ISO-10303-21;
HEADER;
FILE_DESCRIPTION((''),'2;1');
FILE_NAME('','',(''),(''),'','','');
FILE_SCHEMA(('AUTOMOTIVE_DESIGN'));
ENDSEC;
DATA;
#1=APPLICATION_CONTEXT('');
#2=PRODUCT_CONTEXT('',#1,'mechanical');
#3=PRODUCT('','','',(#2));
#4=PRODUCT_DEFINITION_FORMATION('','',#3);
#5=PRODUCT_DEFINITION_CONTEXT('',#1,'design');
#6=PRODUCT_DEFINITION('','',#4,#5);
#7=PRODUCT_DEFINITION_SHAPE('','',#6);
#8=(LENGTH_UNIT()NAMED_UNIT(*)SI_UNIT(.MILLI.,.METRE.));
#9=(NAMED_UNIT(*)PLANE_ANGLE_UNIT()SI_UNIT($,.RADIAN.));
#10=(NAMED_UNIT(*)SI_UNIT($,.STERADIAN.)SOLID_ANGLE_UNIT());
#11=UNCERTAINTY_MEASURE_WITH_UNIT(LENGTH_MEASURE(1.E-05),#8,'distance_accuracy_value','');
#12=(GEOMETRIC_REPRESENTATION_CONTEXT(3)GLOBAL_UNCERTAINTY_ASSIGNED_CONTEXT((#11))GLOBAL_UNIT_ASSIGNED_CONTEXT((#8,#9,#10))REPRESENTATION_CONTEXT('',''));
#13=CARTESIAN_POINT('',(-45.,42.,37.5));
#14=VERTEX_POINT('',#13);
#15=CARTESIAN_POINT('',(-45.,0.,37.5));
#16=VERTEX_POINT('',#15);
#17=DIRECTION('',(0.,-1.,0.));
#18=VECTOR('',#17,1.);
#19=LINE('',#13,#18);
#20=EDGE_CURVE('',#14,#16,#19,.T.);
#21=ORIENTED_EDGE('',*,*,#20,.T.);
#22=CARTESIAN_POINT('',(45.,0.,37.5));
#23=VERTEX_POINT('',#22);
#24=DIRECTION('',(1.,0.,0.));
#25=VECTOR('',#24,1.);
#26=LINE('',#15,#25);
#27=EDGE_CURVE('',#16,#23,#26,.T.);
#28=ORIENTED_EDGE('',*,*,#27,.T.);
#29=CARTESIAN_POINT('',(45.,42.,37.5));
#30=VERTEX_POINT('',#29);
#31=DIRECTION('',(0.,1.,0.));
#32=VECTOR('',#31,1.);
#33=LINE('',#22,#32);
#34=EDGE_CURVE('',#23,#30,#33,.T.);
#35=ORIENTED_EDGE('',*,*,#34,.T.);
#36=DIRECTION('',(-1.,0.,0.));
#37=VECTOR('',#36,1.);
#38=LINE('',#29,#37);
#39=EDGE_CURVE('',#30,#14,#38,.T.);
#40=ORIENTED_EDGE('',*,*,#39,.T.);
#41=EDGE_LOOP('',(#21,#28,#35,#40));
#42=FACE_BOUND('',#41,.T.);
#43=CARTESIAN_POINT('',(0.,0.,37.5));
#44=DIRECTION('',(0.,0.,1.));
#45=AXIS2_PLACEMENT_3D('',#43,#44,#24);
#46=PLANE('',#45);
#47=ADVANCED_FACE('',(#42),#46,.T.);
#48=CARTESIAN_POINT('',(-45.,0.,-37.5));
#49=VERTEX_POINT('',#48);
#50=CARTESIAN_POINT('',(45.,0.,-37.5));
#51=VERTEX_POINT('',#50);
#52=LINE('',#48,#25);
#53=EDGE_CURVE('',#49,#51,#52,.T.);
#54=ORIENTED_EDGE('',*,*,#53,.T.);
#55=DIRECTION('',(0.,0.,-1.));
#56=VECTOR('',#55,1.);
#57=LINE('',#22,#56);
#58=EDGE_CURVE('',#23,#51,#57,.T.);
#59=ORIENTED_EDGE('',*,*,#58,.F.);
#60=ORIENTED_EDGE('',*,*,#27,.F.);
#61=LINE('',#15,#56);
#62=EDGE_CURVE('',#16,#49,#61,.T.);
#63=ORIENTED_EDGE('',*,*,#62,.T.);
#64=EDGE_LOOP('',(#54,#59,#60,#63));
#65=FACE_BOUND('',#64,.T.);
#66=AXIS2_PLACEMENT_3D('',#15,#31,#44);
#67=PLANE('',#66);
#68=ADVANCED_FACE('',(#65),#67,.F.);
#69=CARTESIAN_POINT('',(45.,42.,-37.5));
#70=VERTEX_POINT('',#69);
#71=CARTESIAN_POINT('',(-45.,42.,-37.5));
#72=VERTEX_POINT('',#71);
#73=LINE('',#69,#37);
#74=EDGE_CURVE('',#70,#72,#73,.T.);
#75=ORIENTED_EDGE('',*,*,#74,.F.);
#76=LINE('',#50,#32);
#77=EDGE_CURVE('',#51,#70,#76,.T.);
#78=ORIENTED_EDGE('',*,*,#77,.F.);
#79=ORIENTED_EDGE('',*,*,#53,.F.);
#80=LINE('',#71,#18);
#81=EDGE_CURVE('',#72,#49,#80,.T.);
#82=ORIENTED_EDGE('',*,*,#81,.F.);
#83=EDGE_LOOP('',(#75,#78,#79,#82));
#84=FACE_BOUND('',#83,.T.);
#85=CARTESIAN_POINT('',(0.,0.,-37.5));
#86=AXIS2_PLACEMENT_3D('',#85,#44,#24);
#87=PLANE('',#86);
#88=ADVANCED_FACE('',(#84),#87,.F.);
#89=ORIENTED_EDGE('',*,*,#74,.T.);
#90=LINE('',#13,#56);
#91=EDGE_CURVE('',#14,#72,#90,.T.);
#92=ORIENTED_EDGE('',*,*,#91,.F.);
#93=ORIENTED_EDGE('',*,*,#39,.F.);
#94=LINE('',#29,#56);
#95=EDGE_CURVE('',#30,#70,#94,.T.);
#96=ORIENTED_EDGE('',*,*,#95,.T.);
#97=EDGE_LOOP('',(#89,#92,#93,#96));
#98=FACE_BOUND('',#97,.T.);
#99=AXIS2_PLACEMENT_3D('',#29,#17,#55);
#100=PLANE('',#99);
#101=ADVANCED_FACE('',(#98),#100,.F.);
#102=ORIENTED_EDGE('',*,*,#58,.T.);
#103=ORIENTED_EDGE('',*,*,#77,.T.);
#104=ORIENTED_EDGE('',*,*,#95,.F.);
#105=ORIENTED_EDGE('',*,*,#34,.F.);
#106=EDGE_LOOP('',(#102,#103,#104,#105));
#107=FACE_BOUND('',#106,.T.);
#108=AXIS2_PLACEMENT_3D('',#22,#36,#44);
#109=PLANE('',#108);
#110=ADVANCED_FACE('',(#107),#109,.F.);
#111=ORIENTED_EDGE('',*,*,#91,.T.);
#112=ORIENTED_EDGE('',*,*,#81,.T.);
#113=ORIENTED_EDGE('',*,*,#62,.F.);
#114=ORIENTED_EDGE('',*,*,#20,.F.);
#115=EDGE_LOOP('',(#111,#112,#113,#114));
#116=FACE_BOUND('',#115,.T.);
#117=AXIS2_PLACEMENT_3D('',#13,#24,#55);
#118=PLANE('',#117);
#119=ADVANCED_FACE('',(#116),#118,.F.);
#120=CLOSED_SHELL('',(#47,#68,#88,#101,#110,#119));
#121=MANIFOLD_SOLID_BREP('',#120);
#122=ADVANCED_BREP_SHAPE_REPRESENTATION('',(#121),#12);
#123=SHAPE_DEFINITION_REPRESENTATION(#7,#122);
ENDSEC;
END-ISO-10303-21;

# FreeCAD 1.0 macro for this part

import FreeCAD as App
import Part
import Sketcher
from FreeCAD import Vector

doc = App.newDocument("Part")
params = doc.addObject("Spreadsheet::Sheet", "Params")
for row, (alias, value) in enumerate([
    ("sketch1_width", "90 mm"),
    ("sketch1_height", "42 mm"),
    ("pad1_length", "75 mm"),
], start=1):
    params.set(f"A{row}", alias)
    params.set(f"B{row}", "=" + value)
    params.setAlias(f"B{row}", alias)

body = doc.addObject("PartDesign::Body", "Body")

sketch1 = doc.addObject("Sketcher::SketchObject", "Sketch")
body.addObject(sketch1)
sketch1.AttachmentSupport = (doc.XY_Plane, [""])
sketch1.MapMode = "FlatFace"
sketch1.addGeometry(Part.LineSegment(Vector(-45, 42, 0), Vector(-45, 0, 0)), False)
sketch1.addGeometry(Part.LineSegment(Vector(-45, 0, 0), Vector(45, 0, 0)), False)
sketch1.addGeometry(Part.LineSegment(Vector(45, 0, 0), Vector(45, 42, 0)), False)
sketch1.addGeometry(Part.LineSegment(Vector(45, 42, 0), Vector(-45, 42, 0)), False)
sketch1.addConstraint(Sketcher.Constraint("Coincident", 0, 2, 1, 1))
sketch1.addConstraint(Sketcher.Constraint("Coincident", 1, 2, 2, 1))
sketch1.addConstraint(Sketcher.Constraint("Coincident", 2, 2, 3, 1))
sketch1.addConstraint(Sketcher.Constraint("Coincident", 3, 2, 0, 1))
sketch1.addConstraint(Sketcher.Constraint("Vertical", 0))
sketch1.addConstraint(Sketcher.Constraint("Horizontal", 1))
sketch1.addConstraint(Sketcher.Constraint("Vertical", 2))
sketch1.addConstraint(Sketcher.Constraint("Horizontal", 3))
sketch1.addConstraint(Sketcher.Constraint("Symmetric", 0, 2, 1, 2, -1, 1))
sketch1.addConstraint(Sketcher.Constraint("DistanceX", 1, 1, 1, 2, 90.0))
sketch1.addConstraint(Sketcher.Constraint("DistanceY", 0, 2, 0, 1, 42.0))
sketch1.setExpression("Constraints[9]", "Params.sketch1_width")
sketch1.setExpression("Constraints[10]", "Params.sketch1_height")
pad1 = doc.addObject("PartDesign::Pad", "Pad")
body.addObject(pad1)
pad1.Profile = sketch1
pad1.setExpression("Length", "Params.pad1_length")
pad1.Midplane = True

doc.recompute()
